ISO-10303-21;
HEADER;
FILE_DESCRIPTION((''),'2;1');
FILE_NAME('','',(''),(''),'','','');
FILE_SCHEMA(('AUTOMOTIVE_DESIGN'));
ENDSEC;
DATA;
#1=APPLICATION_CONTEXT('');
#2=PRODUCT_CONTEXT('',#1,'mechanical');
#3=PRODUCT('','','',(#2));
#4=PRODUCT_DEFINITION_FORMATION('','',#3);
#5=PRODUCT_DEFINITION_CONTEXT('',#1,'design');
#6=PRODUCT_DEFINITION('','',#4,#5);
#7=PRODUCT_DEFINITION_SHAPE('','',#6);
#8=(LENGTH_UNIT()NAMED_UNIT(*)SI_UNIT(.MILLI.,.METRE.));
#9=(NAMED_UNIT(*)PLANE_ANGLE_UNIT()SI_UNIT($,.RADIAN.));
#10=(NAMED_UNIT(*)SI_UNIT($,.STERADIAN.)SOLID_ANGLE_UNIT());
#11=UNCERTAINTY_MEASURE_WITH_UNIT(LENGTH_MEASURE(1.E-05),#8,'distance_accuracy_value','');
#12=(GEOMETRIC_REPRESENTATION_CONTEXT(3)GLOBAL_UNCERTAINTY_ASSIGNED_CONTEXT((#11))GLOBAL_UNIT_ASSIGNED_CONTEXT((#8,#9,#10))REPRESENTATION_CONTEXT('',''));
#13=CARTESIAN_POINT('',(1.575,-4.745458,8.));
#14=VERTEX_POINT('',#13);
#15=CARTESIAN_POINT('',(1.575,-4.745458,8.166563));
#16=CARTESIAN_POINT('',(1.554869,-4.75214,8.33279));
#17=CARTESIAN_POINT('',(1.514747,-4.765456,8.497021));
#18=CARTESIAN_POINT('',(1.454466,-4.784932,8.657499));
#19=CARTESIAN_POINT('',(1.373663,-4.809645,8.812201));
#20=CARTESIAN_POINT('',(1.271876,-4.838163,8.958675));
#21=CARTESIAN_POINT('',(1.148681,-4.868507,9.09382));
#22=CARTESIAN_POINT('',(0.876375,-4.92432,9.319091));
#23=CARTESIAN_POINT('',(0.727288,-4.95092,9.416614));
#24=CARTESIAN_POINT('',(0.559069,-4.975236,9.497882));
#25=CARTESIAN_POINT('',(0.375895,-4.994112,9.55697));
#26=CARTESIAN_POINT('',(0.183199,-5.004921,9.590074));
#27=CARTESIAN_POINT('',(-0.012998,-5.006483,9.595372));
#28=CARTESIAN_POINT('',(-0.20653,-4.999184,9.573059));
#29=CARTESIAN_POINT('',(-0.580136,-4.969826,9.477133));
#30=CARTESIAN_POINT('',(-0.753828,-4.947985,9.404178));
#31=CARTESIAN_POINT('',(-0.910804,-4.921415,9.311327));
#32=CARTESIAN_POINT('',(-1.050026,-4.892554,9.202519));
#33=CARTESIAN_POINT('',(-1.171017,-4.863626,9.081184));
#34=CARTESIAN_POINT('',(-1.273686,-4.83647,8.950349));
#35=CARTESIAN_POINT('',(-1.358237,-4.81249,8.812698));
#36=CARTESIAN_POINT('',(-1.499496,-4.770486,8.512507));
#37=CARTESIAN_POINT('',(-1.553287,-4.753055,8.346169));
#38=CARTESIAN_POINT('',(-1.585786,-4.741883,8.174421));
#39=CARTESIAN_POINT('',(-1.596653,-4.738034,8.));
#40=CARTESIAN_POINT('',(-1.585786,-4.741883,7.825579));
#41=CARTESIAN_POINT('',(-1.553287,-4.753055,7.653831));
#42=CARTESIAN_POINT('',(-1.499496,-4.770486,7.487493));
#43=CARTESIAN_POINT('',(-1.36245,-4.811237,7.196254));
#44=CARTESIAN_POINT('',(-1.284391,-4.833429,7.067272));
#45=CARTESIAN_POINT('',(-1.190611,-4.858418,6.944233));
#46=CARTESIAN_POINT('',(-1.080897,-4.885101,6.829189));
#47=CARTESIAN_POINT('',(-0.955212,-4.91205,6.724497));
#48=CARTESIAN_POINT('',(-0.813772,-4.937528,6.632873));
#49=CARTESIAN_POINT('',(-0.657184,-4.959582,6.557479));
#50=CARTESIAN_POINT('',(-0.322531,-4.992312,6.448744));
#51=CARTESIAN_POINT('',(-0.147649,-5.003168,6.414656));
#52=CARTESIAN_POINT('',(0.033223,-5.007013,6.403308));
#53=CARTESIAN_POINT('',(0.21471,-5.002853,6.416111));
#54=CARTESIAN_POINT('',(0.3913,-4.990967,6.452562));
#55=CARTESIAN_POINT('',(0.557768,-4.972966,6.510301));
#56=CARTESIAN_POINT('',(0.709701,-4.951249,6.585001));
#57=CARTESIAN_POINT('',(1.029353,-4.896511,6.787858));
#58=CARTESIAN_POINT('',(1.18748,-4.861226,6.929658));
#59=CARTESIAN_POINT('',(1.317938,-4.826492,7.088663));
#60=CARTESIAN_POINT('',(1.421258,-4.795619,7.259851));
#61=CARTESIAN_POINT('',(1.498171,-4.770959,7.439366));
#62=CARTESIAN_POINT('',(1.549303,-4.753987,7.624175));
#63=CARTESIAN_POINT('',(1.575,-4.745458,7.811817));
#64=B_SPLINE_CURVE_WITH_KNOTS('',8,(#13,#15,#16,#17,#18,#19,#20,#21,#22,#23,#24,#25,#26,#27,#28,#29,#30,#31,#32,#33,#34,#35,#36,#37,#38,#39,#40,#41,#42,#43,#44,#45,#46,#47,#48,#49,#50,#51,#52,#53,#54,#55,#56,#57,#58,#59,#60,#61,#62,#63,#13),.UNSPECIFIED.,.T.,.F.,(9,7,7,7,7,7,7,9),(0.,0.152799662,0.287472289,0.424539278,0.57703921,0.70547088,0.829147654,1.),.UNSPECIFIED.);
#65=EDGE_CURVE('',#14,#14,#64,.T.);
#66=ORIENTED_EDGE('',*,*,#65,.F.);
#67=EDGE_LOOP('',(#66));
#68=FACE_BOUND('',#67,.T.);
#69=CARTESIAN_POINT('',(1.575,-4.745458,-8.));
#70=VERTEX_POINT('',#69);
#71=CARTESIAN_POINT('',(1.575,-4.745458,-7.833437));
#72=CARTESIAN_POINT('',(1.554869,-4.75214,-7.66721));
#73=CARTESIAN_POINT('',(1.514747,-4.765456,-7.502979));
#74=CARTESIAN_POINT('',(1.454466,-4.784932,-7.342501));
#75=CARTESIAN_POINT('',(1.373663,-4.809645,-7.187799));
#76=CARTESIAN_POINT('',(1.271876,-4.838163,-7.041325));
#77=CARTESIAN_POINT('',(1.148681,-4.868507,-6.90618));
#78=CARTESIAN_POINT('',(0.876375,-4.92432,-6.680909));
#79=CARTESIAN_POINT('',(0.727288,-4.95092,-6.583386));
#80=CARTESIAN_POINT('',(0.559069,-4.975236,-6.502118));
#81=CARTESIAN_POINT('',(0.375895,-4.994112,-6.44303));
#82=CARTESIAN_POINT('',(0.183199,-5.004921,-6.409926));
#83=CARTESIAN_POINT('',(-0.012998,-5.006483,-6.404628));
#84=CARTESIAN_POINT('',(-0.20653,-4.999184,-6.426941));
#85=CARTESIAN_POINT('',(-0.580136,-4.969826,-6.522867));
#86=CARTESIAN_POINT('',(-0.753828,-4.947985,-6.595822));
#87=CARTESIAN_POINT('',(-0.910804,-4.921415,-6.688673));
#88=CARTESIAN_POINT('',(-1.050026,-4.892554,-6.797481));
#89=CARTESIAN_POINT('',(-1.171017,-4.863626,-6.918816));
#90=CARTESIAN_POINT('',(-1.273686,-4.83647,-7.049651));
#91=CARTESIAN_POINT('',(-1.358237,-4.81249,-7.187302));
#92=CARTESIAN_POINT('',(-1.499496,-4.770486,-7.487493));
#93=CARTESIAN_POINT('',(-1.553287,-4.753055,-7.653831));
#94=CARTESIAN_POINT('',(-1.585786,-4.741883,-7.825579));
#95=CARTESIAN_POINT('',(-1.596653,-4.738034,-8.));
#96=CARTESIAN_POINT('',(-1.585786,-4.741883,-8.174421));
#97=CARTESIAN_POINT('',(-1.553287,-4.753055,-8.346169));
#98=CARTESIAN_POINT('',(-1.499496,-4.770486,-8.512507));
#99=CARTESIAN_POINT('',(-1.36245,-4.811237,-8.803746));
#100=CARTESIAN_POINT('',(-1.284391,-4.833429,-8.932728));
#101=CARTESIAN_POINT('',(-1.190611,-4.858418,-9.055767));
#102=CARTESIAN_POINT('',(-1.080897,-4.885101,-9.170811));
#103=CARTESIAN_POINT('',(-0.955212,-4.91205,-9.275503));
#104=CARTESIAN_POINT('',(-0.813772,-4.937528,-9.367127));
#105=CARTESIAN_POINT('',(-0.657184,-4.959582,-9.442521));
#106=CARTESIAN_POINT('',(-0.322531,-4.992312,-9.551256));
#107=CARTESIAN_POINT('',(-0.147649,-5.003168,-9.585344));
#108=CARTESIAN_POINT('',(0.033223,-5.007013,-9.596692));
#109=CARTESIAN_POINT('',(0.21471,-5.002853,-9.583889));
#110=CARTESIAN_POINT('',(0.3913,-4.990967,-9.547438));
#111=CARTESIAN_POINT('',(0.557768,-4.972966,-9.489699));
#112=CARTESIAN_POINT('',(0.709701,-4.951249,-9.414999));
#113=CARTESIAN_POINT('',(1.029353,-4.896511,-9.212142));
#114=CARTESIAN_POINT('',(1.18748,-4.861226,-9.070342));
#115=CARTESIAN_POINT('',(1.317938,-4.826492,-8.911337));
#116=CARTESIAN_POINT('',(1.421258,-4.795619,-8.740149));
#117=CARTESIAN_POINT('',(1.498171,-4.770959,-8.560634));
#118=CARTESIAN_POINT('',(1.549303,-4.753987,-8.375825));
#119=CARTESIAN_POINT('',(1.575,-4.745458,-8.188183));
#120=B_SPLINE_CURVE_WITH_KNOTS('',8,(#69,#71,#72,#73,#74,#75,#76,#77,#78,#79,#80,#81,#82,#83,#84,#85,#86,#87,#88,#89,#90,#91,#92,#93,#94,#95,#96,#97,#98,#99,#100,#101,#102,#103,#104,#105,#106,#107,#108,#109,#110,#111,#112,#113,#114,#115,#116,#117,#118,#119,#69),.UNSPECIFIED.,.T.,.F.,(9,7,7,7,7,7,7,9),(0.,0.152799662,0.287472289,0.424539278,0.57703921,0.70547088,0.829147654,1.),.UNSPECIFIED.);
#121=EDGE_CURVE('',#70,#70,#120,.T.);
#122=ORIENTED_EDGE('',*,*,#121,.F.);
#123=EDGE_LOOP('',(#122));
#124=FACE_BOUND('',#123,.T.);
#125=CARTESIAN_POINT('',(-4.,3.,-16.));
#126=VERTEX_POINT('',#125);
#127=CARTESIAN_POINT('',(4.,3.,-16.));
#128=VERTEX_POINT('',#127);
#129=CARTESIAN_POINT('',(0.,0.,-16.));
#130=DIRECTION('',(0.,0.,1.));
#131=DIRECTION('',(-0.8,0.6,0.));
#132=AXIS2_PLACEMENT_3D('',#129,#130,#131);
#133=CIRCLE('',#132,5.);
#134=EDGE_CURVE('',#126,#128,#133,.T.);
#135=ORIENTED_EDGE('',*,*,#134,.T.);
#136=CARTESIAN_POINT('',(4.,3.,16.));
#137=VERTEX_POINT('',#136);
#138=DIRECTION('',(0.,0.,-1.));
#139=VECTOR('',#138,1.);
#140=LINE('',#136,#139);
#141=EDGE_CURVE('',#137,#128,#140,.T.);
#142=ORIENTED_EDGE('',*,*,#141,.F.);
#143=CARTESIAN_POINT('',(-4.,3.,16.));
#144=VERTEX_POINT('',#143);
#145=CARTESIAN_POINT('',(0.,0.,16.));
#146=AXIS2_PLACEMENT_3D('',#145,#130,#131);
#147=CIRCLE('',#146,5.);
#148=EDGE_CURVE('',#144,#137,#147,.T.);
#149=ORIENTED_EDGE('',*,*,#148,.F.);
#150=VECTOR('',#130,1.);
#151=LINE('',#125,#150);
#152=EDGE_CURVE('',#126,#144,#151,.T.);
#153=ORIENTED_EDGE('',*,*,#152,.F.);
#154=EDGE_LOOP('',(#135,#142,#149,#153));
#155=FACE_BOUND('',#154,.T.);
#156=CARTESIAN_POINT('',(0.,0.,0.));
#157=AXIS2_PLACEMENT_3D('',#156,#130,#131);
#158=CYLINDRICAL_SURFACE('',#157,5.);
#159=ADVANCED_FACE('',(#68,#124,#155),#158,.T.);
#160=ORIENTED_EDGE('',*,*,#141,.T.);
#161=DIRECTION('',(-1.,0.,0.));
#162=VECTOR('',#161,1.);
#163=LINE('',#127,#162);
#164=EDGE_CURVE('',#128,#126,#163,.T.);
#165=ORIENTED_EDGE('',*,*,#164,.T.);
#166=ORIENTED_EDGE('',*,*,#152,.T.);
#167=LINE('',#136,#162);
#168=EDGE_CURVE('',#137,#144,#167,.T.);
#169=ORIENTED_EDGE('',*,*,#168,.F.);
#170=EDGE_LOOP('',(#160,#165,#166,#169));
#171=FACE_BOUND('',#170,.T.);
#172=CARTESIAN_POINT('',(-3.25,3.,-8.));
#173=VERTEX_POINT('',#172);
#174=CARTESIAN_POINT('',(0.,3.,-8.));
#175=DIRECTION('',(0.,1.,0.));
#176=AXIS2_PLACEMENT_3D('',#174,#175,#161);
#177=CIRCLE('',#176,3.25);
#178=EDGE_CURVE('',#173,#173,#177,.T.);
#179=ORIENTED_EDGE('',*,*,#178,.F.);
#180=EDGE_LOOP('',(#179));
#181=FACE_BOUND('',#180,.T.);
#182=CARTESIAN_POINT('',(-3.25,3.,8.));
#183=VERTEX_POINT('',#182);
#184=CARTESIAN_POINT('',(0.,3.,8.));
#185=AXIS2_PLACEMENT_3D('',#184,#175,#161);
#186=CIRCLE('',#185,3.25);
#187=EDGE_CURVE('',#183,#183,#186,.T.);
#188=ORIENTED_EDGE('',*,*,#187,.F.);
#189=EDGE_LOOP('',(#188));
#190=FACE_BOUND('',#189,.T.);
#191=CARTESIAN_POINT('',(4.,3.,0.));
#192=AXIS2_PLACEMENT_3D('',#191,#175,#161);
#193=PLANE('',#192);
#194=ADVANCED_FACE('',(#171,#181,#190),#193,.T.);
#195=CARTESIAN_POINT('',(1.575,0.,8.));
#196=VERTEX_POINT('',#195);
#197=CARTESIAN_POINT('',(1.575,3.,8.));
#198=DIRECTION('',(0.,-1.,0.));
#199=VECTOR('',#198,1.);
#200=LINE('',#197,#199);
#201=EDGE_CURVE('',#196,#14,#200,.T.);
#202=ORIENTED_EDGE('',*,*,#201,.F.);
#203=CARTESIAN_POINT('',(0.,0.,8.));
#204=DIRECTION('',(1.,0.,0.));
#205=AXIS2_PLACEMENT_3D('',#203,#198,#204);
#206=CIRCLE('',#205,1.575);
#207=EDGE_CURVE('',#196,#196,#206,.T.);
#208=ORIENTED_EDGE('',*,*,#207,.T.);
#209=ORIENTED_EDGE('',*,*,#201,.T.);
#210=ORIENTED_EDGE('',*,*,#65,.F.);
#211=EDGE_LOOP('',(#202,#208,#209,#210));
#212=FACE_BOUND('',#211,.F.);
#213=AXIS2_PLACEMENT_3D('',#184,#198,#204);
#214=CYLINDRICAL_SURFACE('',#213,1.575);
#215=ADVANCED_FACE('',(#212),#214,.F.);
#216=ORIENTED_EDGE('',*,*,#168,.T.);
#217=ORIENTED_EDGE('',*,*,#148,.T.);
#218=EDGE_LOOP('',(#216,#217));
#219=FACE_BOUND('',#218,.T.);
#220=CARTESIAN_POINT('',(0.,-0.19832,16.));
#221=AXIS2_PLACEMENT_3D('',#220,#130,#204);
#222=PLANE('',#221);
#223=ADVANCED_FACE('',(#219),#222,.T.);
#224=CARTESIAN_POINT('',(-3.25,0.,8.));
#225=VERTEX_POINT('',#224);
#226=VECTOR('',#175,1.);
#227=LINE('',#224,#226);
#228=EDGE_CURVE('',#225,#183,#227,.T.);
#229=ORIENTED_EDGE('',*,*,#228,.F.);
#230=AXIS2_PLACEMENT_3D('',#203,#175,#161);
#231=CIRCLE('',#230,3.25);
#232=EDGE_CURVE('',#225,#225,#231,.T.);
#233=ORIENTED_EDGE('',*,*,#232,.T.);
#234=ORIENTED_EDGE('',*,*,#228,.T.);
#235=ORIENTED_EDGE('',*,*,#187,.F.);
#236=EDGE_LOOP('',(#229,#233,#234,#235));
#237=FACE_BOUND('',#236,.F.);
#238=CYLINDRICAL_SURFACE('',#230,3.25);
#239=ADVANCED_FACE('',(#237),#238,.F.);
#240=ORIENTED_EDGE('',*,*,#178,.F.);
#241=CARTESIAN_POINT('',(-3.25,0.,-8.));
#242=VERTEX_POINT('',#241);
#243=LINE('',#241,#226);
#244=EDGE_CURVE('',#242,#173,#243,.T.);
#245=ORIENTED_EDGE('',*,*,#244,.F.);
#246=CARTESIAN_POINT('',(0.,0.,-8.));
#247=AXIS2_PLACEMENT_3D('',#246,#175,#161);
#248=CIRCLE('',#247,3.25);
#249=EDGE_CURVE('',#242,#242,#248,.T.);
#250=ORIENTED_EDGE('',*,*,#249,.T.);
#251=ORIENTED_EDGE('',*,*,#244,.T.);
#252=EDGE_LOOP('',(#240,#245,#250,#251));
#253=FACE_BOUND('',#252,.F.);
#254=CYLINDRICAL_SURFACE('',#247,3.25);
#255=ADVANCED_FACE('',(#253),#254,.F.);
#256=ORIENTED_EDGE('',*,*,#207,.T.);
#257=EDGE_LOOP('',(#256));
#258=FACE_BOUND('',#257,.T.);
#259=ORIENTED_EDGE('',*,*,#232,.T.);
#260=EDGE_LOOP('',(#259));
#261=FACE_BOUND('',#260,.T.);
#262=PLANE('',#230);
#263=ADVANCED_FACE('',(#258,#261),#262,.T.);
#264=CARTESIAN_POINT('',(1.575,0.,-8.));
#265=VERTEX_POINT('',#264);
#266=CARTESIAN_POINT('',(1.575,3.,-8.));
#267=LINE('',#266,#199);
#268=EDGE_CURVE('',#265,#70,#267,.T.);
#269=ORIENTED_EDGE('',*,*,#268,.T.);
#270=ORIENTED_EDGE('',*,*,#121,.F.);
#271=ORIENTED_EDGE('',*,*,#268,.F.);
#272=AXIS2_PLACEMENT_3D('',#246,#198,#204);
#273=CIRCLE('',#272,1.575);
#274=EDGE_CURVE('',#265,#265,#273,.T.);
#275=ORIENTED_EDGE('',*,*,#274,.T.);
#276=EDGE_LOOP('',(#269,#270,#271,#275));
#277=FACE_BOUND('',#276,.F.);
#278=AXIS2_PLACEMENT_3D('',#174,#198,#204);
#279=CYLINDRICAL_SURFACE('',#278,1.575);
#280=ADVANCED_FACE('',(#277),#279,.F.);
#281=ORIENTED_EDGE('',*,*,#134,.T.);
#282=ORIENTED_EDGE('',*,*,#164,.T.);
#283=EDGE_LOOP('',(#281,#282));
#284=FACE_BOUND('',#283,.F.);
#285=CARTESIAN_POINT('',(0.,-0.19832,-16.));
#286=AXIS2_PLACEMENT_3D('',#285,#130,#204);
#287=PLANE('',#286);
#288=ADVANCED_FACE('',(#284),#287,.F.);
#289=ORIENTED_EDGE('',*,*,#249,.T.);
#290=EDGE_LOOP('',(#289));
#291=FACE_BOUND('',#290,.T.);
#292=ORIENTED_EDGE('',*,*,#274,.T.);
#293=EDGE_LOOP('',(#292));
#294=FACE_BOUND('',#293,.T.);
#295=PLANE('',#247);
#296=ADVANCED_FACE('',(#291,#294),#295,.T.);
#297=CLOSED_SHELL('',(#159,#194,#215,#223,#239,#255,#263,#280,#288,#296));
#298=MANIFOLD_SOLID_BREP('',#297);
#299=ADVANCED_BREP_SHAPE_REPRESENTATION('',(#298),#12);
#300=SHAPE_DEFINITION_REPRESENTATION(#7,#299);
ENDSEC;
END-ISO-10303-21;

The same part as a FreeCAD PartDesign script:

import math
import FreeCAD as App
import Part
import Sketcher

doc = App.newDocument("Part")
body = doc.addObject("PartDesign::Body", "Body")

sketch1 = doc.addObject("Sketcher::SketchObject", "Sketch")
body.addObject(sketch1)
sketch1.AttachmentSupport = (doc.XY_Plane, [""])
sketch1.MapMode = "FlatFace"
sketch1.addGeometry([
    Part.LineSegment(App.Vector(4, 3, 0), App.Vector(-4, 3, 0)),
    Part.ArcOfCircle(Part.Circle(App.Vector(0, 0, 0), App.Vector(0, 0, 1), 5), math.radians(143), math.radians(397)),
], False)
sketch1.addConstraint([
    Sketcher.Constraint("Coincident", 0, 1, 1, 2),
    Sketcher.Constraint("Coincident", 1, 1, 0, 2),
    Sketcher.Constraint("Horizontal", 0),
    Sketcher.Constraint("Coincident", 1, 3, -1, 1),
    Sketcher.Constraint("Radius", 1, 5.0),
    Sketcher.Constraint("DistanceX", 0, 2, 0, 1, 8.0),
])
pad1 = doc.addObject("PartDesign::Pad", "Pad")
body.addObject(pad1)
pad1.Profile = sketch1
pad1.Length = 32
pad1.Midplane = True

sketch2 = doc.addObject("Sketcher::SketchObject", "Sketch001")
body.addObject(sketch2)
sketch2.AttachmentSupport = (doc.XZ_Plane, [""])
sketch2.MapMode = "FlatFace"
sketch2.AttachmentOffset = App.Placement(App.Vector(0, 0, -3), App.Rotation())
sketch2.addGeometry([
    Part.Circle(App.Vector(0, 8, 0), App.Vector(0, 0, 1), 1.6),
    Part.Circle(App.Vector(0, -8, 0), App.Vector(0, 0, 1), 1.6),
], False)
sketch2.addConstraint([
    Sketcher.Constraint("Equal", 0, 1),
    Sketcher.Constraint("Symmetric", 0, 3, 1, 3, -1, 1),
    Sketcher.Constraint("PointOnObject", 0, 3, -2),
    Sketcher.Constraint("Diameter", 0, 3.15),
    Sketcher.Constraint("DistanceY", -1, 1, 0, 3, 8.0),
])
doc.recompute()
hole = doc.addObject("PartDesign::Hole", "Hole")
body.addObject(hole)
hole.Profile = sketch2
hole.ThreadType = "None"
hole.Diameter = 3.15
hole.DepthType = "ThroughAll"
hole.HoleCutType = "Counterbore"
hole.HoleCutDiameter = 6.5
hole.HoleCutDepth = 3
hole.Reversed = True

doc.recompute()
